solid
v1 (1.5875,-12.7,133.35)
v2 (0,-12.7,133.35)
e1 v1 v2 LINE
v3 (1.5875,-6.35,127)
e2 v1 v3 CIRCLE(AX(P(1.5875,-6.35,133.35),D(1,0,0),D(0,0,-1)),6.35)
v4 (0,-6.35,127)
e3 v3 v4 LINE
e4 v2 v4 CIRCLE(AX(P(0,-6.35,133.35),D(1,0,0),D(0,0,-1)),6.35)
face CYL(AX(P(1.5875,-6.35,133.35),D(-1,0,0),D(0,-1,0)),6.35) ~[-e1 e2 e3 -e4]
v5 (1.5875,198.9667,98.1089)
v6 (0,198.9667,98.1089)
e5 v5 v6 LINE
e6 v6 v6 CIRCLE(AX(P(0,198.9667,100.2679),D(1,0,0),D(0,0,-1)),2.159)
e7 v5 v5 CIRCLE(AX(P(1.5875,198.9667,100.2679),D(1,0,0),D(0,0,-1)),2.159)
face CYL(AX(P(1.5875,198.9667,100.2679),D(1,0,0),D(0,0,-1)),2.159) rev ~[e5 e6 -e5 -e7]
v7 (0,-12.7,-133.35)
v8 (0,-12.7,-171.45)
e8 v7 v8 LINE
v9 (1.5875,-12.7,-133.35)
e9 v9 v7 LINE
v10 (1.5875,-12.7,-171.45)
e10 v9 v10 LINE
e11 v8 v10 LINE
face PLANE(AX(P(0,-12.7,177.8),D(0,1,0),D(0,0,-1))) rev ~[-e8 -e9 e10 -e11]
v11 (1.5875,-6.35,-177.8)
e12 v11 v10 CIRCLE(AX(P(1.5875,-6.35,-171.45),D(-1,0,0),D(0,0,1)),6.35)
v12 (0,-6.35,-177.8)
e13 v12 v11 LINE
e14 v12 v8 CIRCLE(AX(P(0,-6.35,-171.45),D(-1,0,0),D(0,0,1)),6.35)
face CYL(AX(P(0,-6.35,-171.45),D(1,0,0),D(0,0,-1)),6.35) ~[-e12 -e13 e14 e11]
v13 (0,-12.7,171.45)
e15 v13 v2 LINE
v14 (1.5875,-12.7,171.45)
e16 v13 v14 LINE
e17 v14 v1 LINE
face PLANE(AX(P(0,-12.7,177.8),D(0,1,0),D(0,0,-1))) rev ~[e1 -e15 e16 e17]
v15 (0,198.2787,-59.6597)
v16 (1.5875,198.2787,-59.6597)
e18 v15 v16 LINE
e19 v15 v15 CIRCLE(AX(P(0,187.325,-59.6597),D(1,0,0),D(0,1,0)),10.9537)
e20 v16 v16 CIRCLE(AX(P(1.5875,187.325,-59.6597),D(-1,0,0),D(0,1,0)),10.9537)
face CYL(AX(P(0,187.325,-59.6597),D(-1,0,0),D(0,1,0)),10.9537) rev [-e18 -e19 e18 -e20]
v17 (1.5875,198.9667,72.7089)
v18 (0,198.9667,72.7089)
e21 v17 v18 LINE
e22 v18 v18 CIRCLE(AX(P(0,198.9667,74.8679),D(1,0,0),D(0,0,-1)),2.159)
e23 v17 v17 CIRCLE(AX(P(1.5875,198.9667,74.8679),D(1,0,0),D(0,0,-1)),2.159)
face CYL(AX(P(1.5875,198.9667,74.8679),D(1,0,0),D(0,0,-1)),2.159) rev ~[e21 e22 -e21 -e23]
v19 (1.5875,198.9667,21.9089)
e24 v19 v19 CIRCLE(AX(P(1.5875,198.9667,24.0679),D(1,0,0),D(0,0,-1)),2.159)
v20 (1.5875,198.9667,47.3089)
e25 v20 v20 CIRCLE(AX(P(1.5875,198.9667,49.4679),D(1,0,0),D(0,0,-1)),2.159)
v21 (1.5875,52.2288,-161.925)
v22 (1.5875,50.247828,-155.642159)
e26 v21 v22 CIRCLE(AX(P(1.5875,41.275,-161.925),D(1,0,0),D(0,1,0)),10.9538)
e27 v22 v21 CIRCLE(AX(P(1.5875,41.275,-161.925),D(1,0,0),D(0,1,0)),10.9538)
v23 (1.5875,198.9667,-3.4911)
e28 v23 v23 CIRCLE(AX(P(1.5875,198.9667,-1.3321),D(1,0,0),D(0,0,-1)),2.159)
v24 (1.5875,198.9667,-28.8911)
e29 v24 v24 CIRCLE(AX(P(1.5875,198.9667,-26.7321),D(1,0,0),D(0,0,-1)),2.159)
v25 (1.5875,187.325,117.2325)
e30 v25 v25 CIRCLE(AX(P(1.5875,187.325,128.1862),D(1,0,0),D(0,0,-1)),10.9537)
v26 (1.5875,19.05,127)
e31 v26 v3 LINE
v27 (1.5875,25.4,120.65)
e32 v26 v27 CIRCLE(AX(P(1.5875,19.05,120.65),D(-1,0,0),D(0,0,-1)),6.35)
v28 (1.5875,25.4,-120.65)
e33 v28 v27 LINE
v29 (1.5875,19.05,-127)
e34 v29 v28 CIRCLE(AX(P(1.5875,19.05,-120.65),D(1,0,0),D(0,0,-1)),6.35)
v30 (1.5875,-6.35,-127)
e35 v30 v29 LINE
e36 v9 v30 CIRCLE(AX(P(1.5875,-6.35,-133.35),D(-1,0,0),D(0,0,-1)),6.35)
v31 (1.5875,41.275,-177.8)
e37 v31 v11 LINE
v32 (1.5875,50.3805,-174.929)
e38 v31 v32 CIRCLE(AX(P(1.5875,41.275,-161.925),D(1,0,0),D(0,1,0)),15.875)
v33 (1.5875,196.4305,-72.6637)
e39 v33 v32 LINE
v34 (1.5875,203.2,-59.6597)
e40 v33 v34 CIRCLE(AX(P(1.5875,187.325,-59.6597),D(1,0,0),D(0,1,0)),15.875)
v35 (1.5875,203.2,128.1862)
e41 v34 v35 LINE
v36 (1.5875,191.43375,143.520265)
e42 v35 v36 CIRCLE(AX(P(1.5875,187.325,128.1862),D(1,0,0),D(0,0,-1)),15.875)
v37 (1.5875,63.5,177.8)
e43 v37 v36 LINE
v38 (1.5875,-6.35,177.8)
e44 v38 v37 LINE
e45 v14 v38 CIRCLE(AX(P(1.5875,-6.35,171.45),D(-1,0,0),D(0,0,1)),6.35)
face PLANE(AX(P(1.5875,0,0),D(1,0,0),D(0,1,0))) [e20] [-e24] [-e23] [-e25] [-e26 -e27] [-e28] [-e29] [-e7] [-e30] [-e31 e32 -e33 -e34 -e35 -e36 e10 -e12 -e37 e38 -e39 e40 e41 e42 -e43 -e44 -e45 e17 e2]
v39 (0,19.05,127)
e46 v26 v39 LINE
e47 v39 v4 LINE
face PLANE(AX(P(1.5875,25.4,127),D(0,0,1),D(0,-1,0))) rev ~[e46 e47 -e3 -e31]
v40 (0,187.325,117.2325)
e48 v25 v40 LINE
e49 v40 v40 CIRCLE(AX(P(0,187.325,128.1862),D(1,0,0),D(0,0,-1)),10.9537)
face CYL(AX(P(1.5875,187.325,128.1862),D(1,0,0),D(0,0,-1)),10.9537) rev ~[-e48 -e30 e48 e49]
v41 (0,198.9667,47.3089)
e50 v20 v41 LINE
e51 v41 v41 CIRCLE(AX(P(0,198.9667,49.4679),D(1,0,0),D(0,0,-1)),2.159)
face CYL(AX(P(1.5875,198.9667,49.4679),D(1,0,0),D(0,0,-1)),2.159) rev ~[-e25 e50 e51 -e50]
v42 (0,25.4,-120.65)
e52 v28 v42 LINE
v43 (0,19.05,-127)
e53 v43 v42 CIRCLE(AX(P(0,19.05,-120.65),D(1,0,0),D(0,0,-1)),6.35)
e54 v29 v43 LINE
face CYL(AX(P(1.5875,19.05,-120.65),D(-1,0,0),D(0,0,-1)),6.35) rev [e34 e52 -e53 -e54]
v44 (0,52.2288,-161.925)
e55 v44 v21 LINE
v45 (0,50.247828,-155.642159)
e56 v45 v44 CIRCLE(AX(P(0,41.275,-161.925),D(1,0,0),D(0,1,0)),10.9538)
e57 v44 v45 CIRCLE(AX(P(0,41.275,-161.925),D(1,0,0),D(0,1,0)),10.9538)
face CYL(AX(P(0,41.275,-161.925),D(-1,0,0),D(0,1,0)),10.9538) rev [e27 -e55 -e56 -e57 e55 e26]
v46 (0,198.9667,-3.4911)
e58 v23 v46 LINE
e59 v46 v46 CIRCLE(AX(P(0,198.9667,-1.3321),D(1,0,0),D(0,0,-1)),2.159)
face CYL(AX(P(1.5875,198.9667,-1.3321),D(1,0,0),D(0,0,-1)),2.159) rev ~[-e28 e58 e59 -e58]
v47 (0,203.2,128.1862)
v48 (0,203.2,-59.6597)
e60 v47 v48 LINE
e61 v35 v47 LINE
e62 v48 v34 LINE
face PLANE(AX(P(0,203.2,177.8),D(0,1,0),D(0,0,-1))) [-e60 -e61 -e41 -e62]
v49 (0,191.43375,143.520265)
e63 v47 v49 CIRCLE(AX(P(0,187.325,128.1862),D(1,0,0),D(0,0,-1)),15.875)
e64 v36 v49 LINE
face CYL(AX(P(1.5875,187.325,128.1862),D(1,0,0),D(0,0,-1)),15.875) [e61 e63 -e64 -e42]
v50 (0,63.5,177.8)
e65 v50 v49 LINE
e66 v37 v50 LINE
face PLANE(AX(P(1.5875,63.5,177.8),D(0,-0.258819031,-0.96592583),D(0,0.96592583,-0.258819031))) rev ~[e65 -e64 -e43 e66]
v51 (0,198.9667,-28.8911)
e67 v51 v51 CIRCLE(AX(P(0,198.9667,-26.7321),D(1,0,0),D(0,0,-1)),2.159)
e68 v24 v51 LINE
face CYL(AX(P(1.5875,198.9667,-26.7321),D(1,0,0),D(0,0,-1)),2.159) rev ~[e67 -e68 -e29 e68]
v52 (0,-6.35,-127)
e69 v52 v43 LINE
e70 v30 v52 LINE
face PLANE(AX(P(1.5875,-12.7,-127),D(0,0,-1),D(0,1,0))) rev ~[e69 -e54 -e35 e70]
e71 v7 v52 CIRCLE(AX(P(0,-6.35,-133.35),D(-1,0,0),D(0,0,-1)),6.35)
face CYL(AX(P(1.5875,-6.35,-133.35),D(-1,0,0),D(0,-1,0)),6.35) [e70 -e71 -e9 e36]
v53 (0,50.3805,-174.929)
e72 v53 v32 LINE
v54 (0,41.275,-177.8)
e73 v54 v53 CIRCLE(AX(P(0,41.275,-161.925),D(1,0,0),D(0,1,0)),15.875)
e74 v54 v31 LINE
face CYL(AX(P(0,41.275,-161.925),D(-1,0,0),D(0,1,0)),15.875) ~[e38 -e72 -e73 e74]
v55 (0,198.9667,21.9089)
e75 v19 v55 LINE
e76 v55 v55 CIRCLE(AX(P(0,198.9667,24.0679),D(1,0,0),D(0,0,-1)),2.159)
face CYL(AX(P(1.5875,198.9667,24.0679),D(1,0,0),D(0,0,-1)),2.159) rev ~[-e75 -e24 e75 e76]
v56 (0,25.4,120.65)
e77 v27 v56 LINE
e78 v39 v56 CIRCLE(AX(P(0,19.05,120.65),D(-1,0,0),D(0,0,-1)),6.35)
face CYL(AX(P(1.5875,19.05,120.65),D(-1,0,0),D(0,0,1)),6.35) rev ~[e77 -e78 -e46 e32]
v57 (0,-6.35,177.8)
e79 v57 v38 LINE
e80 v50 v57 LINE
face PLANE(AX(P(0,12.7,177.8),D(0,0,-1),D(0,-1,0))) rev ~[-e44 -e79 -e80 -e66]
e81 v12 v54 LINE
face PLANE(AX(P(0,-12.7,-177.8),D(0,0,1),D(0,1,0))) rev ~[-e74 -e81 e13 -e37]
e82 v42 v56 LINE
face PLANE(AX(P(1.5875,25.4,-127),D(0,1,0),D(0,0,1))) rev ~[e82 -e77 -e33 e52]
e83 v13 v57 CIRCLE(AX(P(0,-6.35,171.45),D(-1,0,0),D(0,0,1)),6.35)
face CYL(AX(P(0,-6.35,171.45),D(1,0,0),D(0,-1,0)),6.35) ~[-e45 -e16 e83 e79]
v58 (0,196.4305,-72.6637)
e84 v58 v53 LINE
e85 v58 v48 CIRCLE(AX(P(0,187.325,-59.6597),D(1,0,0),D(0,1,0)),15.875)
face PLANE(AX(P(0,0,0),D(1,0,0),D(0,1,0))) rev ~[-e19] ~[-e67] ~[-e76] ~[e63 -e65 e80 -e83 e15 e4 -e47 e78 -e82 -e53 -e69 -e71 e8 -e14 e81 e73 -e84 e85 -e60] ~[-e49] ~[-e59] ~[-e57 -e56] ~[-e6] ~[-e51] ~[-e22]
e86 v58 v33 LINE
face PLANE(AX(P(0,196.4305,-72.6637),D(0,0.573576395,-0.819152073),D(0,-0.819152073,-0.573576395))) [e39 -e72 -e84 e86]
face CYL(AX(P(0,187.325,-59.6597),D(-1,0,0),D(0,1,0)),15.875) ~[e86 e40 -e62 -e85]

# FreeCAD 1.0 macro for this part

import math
import FreeCAD as App
import Part
import Sketcher
Q = App.Units.Quantity


def edges_at(feature, points):
    """Names of the edges that pass closest to the given points."""
    edges = feature.Shape.Edges
    near = lambda p: min(range(len(edges)), key=lambda i: edges[i].distToShape(Part.Vertex(*p))[0])
    return sorted({f"Edge{near(p) + 1}" for p in points})

doc = App.newDocument("Part")
body = doc.addObject("PartDesign::Body", "Body")

# Sketch on YZ plane
sketch1 = body.newObject("Sketcher::SketchObject", "Sketch")
sketch1.AttachmentSupport = (doc.getObject("YZ_Plane"), [""])
sketch1.MapMode = "FlatFace"
sketch1.addGeometry([
    Part.LineSegment(App.Vector(-13, 178, 0), App.Vector(-13, -178, 0)),  # 0
    Part.LineSegment(App.Vector(-13, -178, 0), App.Vector(41, -178, 0)),  # 1
    Part.ArcOfCircle(Part.Circle(App.Vector(41, -162, 0), App.Vector(0, 0, 1), 16), math.radians(-90), math.radians(-55)),  # 2
    Part.LineSegment(App.Vector(50, -175, 0), App.Vector(196, -73, 0)),  # 3
    Part.ArcOfCircle(Part.Circle(App.Vector(187, -60, 0), App.Vector(0, 0, 1), 16), math.radians(-55), math.radians(0)),  # 4
    Part.LineSegment(App.Vector(203, -60, 0), App.Vector(203, 178, 0)),  # 5
    Part.LineSegment(App.Vector(203, 178, 0), App.Vector(-13, 178, 0)),  # 6
    Part.Circle(App.Vector(41, -162, 0), App.Vector(0, 0, 1), 11),  # 7
    Part.Circle(App.Vector(187, -60, 0), App.Vector(0, 0, 1), 11),  # 8
], False)
sketch1.addConstraint([
    Sketcher.Constraint("Coincident", 0, 2, 1, 1),
    Sketcher.Constraint("Tangent", 1, 2, 2, 1),
    Sketcher.Constraint("Tangent", 2, 2, 3, 1),
    Sketcher.Constraint("Tangent", 3, 2, 4, 1),
    Sketcher.Constraint("Tangent", 4, 2, 5, 1),
    Sketcher.Constraint("Coincident", 5, 2, 6, 1),
    Sketcher.Constraint("Coincident", 6, 2, 0, 1),
    Sketcher.Constraint("Vertical", 0),
    Sketcher.Constraint("Horizontal", 1),
    Sketcher.Constraint("Vertical", 5),
    Sketcher.Constraint("Horizontal", 6),
    Sketcher.Constraint("Coincident", 7, 3, 2, 3),
    Sketcher.Constraint("Coincident", 8, 3, 4, 3),
    Sketcher.Constraint("Equal", 2, 4),
    Sketcher.Constraint("Equal", 7, 8),
    Sketcher.Constraint("DistanceY", 0, 2, 0, 1, Q("14 in")),
    Sketcher.Constraint("DistanceY", 0, 2, -1, 1, Q("7 in")),
    Sketcher.Constraint("Angle", 3, Q("35 deg")),
    Sketcher.Constraint("Radius", 2, Q("0.625 in")),
    Sketcher.Constraint("Diameter", 7, Q("0.8625 in")),
    Sketcher.Constraint("DistanceX", 0, 2, -1, 1, Q("0.5 in")),
    Sketcher.Constraint("DistanceX", 6, 2, 6, 1, Q("8.5 in")),
    Sketcher.Constraint("DistanceX", 1, 1, 1, 2, Q("2.125 in")),
])
pad1 = body.newObject("PartDesign::Pad", "Pad")
pad1.Profile = sketch1
pad1.Length = Q("0.0625 in")

# Sketch on YZ plane
sketch2 = body.newObject("Sketcher::SketchObject", "Sketch001")
sketch2.AttachmentSupport = (doc.getObject("YZ_Plane"), [""])
sketch2.MapMode = "FlatFace"
sketch2.AttachmentOffset = App.Placement(App.Vector(0, 0, 0.0625 * 25.4), App.Rotation())
sketch2.addGeometry([
    Part.LineSegment(App.Vector(25, 127, 0), App.Vector(-13, 127, 0)),
    Part.LineSegment(App.Vector(-13, 127, 0), App.Vector(-13, -127, 0)),
    Part.LineSegment(App.Vector(-13, -127, 0), App.Vector(25, -127, 0)),
    Part.LineSegment(App.Vector(25, -127, 0), App.Vector(25, 127, 0)),
], False)
sketch2.addConstraint([
    Sketcher.Constraint("Coincident", 0, 2, 1, 1),
    Sketcher.Constraint("Coincident", 1, 2, 2, 1),
    Sketcher.Constraint("Coincident", 2, 2, 3, 1),
    Sketcher.Constraint("Coincident", 3, 2, 0, 1),
    Sketcher.Constraint("Horizontal", 0),
    Sketcher.Constraint("Vertical", 1),
    Sketcher.Constraint("Horizontal", 2),
    Sketcher.Constraint("Vertical", 3),
    Sketcher.Constraint("DistanceX", 0, 2, 0, 1, Q("1.5 in")),
    Sketcher.Constraint("DistanceY", 1, 2, 1, 1, Q("10 in")),
    Sketcher.Constraint("DistanceY", -1, 1, 0, 2, Q("5 in")),
    Sketcher.Constraint("DistanceX", -1, 1, 2, 2, Q("1 in")),
])
pocket1 = body.newObject("PartDesign::Pocket", "Pocket")
pocket1.Profile = sketch2
pocket1.Length = Q("0.0625 in")

# Sketch on YZ plane
sketch3 = body.newObject("Sketcher::SketchObject", "Sketch002")
sketch3.AttachmentSupport = (doc.getObject("YZ_Plane"), [""])
sketch3.MapMode = "FlatFace"
sketch3.AttachmentOffset = App.Placement(App.Vector(0, 0, 0.0625 * 25.4), App.Rotation())
sketch3.addGeometry([
    Part.LineSegment(App.Vector(203, 178, 0), App.Vector(64, 178, 0)),  # 0
    Part.LineSegment(App.Vector(64, 178, 0), App.Vector(191, 144, 0)),  # 1
    Part.ArcOfCircle(Part.Circle(App.Vector(187, 128, 0), App.Vector(0, 0, 1), 16), math.radians(0), math.radians(75)),  # 2
    Part.LineSegment(App.Vector(203, 128, 0), App.Vector(203, 178, 0)),  # 3
    Part.Circle(App.Vector(187, 128, 0), App.Vector(0, 0, 1), 11),  # 4
], False)
sketch3.addConstraint([
    Sketcher.Constraint("Coincident", 0, 2, 1, 1),
    Sketcher.Constraint("Tangent", 1, 2, 2, 2),
    Sketcher.Constraint("Tangent", 2, 1, 3, 1),
    Sketcher.Constraint("Coincident", 3, 2, 0, 1),
    Sketcher.Constraint("Horizontal", 0),
    Sketcher.Constraint("Vertical", 3),
    Sketcher.Constraint("Coincident", 4, 3, 2, 3),
    Sketcher.Constraint("Radius", 2, Q("0.625 in")),
    Sketcher.Constraint("Diameter", 4, Q("0.8625 in")),
    Sketcher.Constraint("DistanceX", 0, 2, 0, 1, Q("5.5 in")),
    Sketcher.Constraint("DistanceY", -1, 1, 0, 2, Q("7 in")),
    Sketcher.Constraint("DistanceX", -1, 1, 2, 1, Q("8 in")),
    Sketcher.Constraint("Angle", 1, Q("-15 deg")),
])
pocket2 = body.newObject("PartDesign::Pocket", "Pocket001")
pocket2.Profile = sketch3
pocket2.Length = Q("0.0625 in")
doc.recompute()

fillet = body.newObject("PartDesign::Fillet", "Fillet")
fillet.Base = (pocket2, edges_at(pocket2, [
    (0.794, -12.7, 127),
    (0.794, -12.7, 177.8),
    (0.794, 25.4, 127),
    (0.794, 25.4, -127),
    (0.794, -12.7, -127),
    (0.794, -12.7, -177.8),
]))
fillet.Radius = Q("0.25 in")

# Sketch on YZ plane
sketch4 = body.newObject("Sketcher::SketchObject", "Sketch003")
sketch4.AttachmentSupport = (doc.getObject("YZ_Plane"), [""])
sketch4.MapMode = "FlatFace"
sketch4.AttachmentOffset = App.Placement(App.Vector(0, 0, 0.0625 * 25.4), App.Rotation())
sketch4.addGeometry(Part.Circle(App.Vector(199, -26.7, 0), App.Vector(0, 0, 1), 2.2), False)
sketch4.addConstraint([
    Sketcher.Constraint("Diameter", 0, Q("0.17 in")),
    Sketcher.Constraint("DistanceX", -1, 1, 0, 3, Q("198.9667 mm")),
    Sketcher.Constraint("DistanceY", 0, 3, -1, 1, Q("26.732 mm")),
])
pocket3 = body.newObject("PartDesign::Pocket", "Pocket002")
pocket3.Profile = sketch4
pocket3.Length = Q("0.0625 in")
doc.recompute()

linearpattern = body.newObject("PartDesign::LinearPattern", "LinearPattern")
linearpattern.Originals = [pocket3]
linearpattern.Direction = (doc.getObject("Z_Axis"), [""])
linearpattern.Mode = "offset"
linearpattern.Offset = Q("1 in")
linearpattern.Occurrences = 6
body.Tip = linearpattern

doc.recompute()
